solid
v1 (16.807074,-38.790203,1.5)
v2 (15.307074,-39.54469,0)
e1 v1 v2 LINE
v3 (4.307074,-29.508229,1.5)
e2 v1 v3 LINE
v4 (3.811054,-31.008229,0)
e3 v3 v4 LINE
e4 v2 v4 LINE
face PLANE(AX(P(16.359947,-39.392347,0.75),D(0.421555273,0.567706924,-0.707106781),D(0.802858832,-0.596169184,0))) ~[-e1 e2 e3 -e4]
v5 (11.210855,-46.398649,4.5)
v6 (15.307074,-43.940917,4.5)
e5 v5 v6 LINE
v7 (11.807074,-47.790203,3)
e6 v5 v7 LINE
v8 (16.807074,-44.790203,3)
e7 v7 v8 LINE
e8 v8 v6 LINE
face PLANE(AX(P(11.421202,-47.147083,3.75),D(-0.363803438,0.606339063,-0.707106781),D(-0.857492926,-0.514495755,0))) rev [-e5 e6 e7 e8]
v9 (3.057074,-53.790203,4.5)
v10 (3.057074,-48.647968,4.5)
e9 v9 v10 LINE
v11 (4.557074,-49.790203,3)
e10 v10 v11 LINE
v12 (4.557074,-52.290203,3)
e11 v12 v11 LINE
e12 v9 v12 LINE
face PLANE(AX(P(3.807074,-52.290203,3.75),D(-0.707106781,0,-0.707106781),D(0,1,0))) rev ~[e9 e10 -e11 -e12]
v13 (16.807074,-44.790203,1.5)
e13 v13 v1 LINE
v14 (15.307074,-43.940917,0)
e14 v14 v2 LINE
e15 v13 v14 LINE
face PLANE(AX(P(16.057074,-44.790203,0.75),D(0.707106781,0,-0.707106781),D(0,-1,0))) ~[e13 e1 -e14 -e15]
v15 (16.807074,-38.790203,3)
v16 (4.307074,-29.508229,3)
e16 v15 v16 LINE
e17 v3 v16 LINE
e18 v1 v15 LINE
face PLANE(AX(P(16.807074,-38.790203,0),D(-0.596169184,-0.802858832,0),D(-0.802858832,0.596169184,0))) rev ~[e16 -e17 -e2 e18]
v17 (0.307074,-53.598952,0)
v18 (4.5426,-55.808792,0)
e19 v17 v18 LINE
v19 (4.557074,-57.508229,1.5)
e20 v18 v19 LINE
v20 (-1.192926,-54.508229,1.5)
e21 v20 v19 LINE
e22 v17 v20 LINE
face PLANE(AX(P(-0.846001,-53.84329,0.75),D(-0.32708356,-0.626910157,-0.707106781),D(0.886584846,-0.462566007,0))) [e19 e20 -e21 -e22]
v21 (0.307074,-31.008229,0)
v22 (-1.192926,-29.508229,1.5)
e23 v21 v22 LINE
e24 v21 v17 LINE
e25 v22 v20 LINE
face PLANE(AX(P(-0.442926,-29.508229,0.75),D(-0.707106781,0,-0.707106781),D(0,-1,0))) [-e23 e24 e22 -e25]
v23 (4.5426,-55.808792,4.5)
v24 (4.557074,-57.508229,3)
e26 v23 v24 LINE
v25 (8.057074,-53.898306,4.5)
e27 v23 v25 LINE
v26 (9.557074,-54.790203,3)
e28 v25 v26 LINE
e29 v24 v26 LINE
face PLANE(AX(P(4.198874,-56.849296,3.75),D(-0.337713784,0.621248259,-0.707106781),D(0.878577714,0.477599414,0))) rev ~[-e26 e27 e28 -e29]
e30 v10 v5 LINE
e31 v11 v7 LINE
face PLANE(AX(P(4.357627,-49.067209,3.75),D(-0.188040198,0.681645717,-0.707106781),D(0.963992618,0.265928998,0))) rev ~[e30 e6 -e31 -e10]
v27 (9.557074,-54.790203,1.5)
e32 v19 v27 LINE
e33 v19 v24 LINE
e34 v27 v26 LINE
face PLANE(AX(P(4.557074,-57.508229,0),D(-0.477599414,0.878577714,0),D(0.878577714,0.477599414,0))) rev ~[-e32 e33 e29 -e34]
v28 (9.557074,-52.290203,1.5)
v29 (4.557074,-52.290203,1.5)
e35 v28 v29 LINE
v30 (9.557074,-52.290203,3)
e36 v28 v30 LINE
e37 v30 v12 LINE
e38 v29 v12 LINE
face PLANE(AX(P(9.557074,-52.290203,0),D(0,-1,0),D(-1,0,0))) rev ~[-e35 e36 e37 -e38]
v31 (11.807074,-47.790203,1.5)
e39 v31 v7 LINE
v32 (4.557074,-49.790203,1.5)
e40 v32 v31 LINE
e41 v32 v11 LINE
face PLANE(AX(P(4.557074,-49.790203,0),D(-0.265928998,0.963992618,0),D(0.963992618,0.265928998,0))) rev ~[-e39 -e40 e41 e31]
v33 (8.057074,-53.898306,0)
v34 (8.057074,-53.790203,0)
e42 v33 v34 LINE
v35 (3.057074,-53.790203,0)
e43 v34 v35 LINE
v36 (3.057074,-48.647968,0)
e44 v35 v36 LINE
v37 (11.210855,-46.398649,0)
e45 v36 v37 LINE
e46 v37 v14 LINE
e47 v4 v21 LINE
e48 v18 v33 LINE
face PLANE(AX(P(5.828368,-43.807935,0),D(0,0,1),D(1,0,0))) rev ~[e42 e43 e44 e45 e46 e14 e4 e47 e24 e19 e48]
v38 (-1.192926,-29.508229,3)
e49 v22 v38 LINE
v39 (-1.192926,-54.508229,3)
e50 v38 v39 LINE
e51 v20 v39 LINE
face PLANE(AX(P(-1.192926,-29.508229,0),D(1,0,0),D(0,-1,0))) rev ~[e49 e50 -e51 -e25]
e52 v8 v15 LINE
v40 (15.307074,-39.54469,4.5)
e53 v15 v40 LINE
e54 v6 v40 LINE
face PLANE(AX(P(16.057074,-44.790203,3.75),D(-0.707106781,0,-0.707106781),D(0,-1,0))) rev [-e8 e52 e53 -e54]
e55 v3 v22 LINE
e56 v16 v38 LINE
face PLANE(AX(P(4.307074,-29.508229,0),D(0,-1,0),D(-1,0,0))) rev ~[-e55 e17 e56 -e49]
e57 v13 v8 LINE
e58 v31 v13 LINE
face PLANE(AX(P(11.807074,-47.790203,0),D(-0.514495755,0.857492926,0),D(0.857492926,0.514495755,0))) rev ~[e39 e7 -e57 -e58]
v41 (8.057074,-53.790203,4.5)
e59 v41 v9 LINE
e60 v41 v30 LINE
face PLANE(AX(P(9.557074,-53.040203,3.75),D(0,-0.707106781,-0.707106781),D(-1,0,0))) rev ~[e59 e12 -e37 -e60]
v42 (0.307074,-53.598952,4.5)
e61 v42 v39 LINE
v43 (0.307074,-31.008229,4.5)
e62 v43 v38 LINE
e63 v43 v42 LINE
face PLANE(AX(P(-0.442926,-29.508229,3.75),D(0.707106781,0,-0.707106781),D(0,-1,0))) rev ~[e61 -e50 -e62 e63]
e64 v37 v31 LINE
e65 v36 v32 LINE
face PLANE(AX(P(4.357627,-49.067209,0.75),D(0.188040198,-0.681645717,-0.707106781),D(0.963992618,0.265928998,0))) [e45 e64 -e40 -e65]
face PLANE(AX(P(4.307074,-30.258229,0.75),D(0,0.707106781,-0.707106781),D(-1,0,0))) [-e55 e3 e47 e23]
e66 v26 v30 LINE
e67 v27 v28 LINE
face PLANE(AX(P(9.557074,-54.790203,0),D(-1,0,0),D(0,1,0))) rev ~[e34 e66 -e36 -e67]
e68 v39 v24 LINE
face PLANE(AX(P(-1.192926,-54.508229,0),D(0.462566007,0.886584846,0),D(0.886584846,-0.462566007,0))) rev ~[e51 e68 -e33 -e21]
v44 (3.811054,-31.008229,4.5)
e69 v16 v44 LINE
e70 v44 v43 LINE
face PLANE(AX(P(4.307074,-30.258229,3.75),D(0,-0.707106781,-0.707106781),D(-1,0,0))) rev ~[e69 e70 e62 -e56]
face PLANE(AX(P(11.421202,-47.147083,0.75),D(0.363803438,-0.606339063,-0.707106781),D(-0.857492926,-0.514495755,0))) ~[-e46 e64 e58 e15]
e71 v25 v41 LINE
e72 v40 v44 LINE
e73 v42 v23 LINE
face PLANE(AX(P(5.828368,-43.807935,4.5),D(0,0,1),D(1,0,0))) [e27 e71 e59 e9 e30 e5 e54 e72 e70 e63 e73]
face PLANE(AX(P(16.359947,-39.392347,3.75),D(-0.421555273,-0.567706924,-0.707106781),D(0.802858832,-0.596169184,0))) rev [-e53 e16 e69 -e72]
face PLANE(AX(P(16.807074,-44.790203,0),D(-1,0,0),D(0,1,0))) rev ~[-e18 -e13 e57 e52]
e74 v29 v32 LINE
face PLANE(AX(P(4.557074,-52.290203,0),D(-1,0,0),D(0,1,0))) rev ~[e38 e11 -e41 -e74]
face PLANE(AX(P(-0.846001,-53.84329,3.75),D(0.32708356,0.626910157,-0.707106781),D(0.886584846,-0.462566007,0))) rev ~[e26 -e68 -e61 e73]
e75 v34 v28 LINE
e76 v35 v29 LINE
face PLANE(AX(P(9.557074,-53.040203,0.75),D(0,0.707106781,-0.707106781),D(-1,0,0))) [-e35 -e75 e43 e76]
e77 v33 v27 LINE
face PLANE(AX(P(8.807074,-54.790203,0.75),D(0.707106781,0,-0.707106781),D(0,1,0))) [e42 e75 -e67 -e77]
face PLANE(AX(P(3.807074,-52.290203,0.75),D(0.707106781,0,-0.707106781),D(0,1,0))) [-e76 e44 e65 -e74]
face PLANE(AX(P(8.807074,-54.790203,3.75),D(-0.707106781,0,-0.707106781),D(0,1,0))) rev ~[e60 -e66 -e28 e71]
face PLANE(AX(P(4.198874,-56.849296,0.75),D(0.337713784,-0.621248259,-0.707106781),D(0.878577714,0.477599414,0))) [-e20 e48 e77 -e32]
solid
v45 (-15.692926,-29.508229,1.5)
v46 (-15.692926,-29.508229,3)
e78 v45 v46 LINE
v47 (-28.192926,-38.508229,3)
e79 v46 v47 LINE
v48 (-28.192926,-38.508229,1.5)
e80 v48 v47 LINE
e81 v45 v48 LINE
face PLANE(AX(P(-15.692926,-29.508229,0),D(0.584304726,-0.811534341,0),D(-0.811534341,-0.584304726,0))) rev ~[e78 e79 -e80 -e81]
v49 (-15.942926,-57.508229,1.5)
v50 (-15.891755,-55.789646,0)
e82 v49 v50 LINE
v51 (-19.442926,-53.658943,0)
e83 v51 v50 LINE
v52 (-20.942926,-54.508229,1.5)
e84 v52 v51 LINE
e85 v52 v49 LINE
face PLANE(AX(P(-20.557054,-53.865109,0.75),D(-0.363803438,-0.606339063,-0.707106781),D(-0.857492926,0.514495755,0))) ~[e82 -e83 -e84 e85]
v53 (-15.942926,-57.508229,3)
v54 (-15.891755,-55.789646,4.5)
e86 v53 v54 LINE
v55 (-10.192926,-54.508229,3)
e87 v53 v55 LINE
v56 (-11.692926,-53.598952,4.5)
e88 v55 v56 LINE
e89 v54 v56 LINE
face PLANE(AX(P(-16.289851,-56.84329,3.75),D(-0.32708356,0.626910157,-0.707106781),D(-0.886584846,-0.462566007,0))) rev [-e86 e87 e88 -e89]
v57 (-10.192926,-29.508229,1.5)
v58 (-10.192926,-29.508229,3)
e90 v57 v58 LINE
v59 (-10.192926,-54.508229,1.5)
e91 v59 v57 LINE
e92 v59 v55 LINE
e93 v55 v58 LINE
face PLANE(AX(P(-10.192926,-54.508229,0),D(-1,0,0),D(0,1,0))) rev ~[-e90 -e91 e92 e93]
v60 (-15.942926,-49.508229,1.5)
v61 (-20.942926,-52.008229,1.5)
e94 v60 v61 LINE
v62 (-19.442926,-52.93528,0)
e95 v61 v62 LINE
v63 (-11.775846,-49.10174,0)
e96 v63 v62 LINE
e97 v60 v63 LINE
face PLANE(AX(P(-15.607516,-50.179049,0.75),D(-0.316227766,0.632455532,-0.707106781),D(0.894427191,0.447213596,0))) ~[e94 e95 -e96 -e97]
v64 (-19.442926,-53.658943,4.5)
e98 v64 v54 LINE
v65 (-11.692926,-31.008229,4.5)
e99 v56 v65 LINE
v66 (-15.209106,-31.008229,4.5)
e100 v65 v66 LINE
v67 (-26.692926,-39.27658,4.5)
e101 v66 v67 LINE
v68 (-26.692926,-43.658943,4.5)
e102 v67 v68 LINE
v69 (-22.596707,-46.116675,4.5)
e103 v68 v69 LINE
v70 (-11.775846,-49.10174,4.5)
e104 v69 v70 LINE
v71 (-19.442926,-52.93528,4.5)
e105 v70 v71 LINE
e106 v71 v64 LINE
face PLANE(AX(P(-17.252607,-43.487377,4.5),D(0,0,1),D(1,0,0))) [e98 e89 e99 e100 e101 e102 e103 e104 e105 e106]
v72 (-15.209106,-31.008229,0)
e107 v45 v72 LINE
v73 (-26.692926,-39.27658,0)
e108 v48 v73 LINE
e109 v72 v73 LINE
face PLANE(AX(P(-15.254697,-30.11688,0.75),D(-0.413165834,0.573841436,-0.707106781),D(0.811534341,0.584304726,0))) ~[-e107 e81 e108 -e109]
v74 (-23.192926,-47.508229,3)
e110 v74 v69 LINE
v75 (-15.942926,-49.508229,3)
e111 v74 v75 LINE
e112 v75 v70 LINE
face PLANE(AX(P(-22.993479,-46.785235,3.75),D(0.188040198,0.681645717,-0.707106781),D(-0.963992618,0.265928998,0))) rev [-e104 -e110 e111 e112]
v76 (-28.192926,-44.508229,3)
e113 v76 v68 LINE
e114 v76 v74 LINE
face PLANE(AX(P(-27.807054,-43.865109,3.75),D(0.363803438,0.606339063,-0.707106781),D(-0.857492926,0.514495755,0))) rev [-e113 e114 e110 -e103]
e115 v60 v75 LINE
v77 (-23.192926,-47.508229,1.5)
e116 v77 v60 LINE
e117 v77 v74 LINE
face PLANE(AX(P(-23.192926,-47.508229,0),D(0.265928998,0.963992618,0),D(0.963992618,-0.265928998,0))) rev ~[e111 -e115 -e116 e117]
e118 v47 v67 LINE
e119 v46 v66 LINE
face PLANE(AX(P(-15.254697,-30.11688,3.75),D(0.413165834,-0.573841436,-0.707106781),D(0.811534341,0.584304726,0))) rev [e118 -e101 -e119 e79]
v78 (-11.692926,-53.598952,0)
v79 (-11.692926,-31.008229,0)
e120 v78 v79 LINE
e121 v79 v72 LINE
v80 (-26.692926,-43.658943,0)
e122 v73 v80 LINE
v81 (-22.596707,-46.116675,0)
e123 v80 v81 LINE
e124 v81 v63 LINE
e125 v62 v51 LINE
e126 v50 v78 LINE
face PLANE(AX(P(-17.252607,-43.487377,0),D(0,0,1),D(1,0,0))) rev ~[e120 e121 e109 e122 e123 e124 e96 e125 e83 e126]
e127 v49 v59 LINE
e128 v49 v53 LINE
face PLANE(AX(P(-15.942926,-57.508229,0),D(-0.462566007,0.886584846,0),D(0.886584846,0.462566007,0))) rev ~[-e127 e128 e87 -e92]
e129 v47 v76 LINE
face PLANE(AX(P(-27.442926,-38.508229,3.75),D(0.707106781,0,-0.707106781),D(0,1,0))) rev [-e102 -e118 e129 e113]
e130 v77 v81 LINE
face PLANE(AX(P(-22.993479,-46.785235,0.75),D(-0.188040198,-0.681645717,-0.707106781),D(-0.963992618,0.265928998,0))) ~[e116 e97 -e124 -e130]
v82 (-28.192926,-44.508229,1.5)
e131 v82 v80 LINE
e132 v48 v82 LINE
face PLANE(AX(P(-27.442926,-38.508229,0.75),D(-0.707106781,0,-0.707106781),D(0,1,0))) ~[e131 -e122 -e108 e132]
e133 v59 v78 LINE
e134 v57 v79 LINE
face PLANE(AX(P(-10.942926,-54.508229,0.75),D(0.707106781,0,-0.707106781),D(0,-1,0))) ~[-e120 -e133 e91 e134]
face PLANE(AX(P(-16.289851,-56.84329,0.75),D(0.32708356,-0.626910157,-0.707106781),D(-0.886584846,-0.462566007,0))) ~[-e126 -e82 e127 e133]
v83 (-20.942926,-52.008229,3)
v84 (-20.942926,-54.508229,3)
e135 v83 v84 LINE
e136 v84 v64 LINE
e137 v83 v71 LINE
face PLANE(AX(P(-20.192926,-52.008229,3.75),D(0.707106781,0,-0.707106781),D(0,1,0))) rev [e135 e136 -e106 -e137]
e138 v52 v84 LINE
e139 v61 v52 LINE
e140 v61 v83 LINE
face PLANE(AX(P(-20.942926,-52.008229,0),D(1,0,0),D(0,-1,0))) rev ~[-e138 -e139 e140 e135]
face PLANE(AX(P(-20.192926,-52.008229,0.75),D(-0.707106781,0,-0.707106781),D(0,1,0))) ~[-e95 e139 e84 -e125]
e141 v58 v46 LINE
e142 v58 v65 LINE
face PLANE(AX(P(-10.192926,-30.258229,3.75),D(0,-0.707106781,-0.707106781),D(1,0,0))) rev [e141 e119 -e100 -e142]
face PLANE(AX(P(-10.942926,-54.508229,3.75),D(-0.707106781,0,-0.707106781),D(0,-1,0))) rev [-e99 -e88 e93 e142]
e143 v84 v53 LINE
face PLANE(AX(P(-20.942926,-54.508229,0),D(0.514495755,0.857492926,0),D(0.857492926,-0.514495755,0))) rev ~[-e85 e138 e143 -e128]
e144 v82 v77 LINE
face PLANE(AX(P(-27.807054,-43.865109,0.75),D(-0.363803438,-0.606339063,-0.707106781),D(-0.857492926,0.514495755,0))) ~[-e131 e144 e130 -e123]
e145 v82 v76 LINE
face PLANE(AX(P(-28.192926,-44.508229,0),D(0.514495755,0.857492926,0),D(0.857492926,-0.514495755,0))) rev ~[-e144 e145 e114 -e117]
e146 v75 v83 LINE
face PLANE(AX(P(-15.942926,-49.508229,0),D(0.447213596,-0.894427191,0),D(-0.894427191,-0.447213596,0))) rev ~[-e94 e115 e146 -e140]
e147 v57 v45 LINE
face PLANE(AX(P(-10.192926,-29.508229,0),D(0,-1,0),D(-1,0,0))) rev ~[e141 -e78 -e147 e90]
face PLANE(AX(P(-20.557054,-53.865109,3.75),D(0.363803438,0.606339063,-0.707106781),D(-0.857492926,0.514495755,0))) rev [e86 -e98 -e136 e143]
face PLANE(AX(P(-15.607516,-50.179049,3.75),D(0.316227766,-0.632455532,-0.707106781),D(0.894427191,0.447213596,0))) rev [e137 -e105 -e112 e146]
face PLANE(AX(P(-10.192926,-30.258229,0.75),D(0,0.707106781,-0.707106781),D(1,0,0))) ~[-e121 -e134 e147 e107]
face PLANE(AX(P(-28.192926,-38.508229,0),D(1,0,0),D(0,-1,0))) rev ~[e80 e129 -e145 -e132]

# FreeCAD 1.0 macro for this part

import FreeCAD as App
import Part
import Sketcher

V = App.Vector
Q = App.Units.Quantity


def edges_at(feature, points):
    """Names of the edges that pass closest to the given points."""
    edges = feature.Shape.Edges
    near = lambda p: min(range(len(edges)), key=lambda i: edges[i].distToShape(Part.Vertex(*p))[0])
    return sorted({f"Edge{near(p) + 1}" for p in points})


def add_polygon(sketch, points):
    """Adds a closed chain of lines whose ends are joined by coincident constraints."""
    first, n = sketch.GeometryCount, len(points)
    for a, b in zip(points, points[1:] + points[:1]):
        sketch.addGeometry(Part.LineSegment(App.Vector(*a, 0), App.Vector(*b, 0)), False)
    for i in range(n):
        sketch.addConstraint(Sketcher.Constraint("Coincident", first + i, 2, first + (i + 1) % n, 1))

doc = App.newDocument("Part")
params = doc.addObject("Spreadsheet::Sheet", "Params")
for row, (alias, value) in enumerate([
    ("sketch1_width", "5 mm"),
    ("sketch1_height", "6 mm"),
    ("sketch1_height2", "25 mm"),
    ("sketch1_width2", "5.5 mm"),
    ("sketch1_height3", "2.5 mm"),
    ("pad1_length", "4.5 mm"),
    ("sketch2_width", "5 mm"),
    ("sketch2_height", "6 mm"),
    ("sketch2_height2", "25 mm"),
    ("sketch2_width2", "5.5 mm"),
    ("sketch2_height3", "2.5 mm"),
    ("pad2_length", "4.5 mm"),
    ("chamfer_size", "1.5 mm"),
], start=1):
    params.set(f"A{row}", alias)
    params.set(f"B{row}", "=" + value)
    params.setAlias(f"B{row}", alias)

body = doc.addObject("PartDesign::Body", "Body")
body.AllowCompound = True

sketch1 = body.newObject("Sketcher::SketchObject", "Sketch")
sketch1.AttachmentSupport = (doc.getObject("XY_Plane"), [""])
sketch1.MapMode = "FlatFace"
add_polygon(sketch1, [(16.8, -44.8), (16.8, -38.8), (4.3, -29.5), (-1.2, -29.5), (-1.2, -54.5), (4.6, -57.5), (9.6, -54.8), (9.6, -52.3), (4.6, -52.3), (4.6, -49.8), (11.8, -47.8)])
sketch1.addConstraint([
    Sketcher.Constraint("Vertical", 0),
    Sketcher.Constraint("Horizontal", 2),
    Sketcher.Constraint("Vertical", 3),
    Sketcher.Constraint("Vertical", 6),
    Sketcher.Constraint("Horizontal", 7),
    Sketcher.Constraint("Vertical", 8),
    Sketcher.Constraint("Vertical", 4, 2, 7, 2),
    Sketcher.Constraint("Equal", 6, 8),
    Sketcher.Constraint("DistanceX", 7, 2, 7, 1, Q("5 mm")),
    Sketcher.Constraint("DistanceY", 0, 1, 0, 2, Q("6 mm")),
    Sketcher.Constraint("DistanceY", 3, 2, 3, 1, Q("25 mm")),
    Sketcher.Constraint("DistanceX", 2, 2, 2, 1, Q("5.5 mm")),
    Sketcher.Constraint("DistanceY", 6, 1, 6, 2, Q("2.5 mm")),
    Sketcher.Constraint("DistanceX", 2, 2, 0, 2, Q("18 mm")),
    Sketcher.Constraint("DistanceY", 4, 2, 3, 2, Q("3 mm")),
    Sketcher.Constraint("DistanceY", 5, 2, 0, 2, Q("16 mm")),
    Sketcher.Constraint("DistanceY", 5, 2, 9, 2, Q("7 mm")),
    Sketcher.Constraint("DistanceX", 9, 2, 0, 2, Q("5 mm")),
    Sketcher.Constraint("DistanceX", 3, 2, 4, 2, Q("5.75 mm")),
    Sketcher.Constraint("DistanceY", 1, 2, -1, 1, Q("29.508229 mm")),
    Sketcher.Constraint("Distance", 1, Q("15.569362 mm")),
    Sketcher.Constraint("DistanceX", -1, 1, 0, 2, Q("16.807074 mm")),
])
sketch1.setExpression("Constraints[19]", "Params.sketch1_width")
sketch1.setExpression("Constraints[20]", "Params.sketch1_height")
sketch1.setExpression("Constraints[21]", "Params.sketch1_height2")
sketch1.setExpression("Constraints[22]", "Params.sketch1_width2")
sketch1.setExpression("Constraints[23]", "Params.sketch1_height3")
pad1 = body.newObject("PartDesign::Pad", "Pad")
pad1.Profile = sketch1
pad1.setExpression("Length", "Params.pad1_length")

sketch2 = body.newObject("Sketcher::SketchObject", "Sketch001")
sketch2.AttachmentSupport = (doc.getObject("XY_Plane"), [""])
sketch2.MapMode = "FlatFace"
add_polygon(sketch2, [(-15.7, -29.5), (-28.2, -38.5), (-28.2, -44.5), (-23.2, -47.5), (-15.9, -49.5), (-20.9, -52), (-20.9, -54.5), (-15.9, -57.5), (-10.2, -54.5), (-10.2, -29.5)])
add_polygon(sketch2, [(16.8, -44.8), (16.8, -38.8), (4.3, -29.5), (-1.2, -29.5), (-1.2, -54.5), (4.6, -57.5), (9.6, -54.8), (9.6, -52.3), (4.6, -52.3), (4.6, -49.8), (11.8, -47.8)])
sketch2.addConstraint([
    Sketcher.Constraint("Vertical", 1),
    Sketcher.Constraint("Vertical", 5),
    Sketcher.Constraint("Vertical", 8),
    Sketcher.Constraint("Horizontal", 9),
    Sketcher.Constraint("Vertical", 10),
    Sketcher.Constraint("Horizontal", 12),
    Sketcher.Constraint("Vertical", 13),
    Sketcher.Constraint("Vertical", 16),
    Sketcher.Constraint("Horizontal", 17),
    Sketcher.Constraint("Vertical", 18),
    Sketcher.Constraint("Parallel", 2, 6),
    Sketcher.Constraint("Horizontal", 5, 2, 7, 2),
    Sketcher.Constraint("Horizontal", 9, 2, 11, 2),
    Sketcher.Constraint("Horizontal", 7, 2, 13, 2),
    Sketcher.Constraint("Horizontal", 6, 2, 14, 2),
    Sketcher.Constraint("Vertical", 3, 2, 6, 2),
    Sketcher.Constraint("Vertical", 14, 2, 17, 2),
    Sketcher.Constraint("Equal", 9, 12),
    Sketcher.Constraint("Equal", 1, 10),
    Sketcher.Constraint("Equal", 5, 16),
    Sketcher.Constraint("Equal", 16, 18),
    Sketcher.Constraint("Equal", 2, 6),
    Sketcher.Constraint("Equal", 7, 14),
    Sketcher.Constraint("Equal", 3, 19),
    Sketcher.Constraint("Equal", 6, 20),
    Sketcher.Constraint("DistanceX", 17, 2, 17, 1, Q("5 mm")),
    Sketcher.Constraint("DistanceY", 1, 2, 1, 1, Q("6 mm")),
    Sketcher.Constraint("DistanceY", 8, 1, 8, 2, Q("25 mm")),
    Sketcher.Constraint("DistanceX", 9, 2, 9, 1, Q("5.5 mm")),
    Sketcher.Constraint("DistanceY", 5, 2, 5, 1, Q("2.5 mm")),
    Sketcher.Constraint("DistanceX", 1, 2, 2, 2, Q("5 mm")),
    Sketcher.Constraint("DistanceY", 2, 2, 1, 2, Q("3 mm")),
    Sketcher.Constraint("DistanceY", 3, 2, 2, 2, Q("2 mm")),
    Sketcher.Constraint("DistanceY", 5, 2, 3, 2, Q("5 mm")),
    Sketcher.Constraint("DistanceX", 2, 2, 7, 2, Q("13 mm")),
    Sketcher.Constraint("DistanceX", 8, 2, 10, 2, Q("27 mm")),
    Sketcher.Constraint("DistanceX", 9, 2, 11, 2, Q("20 mm")),
    Sketcher.Constraint("DistanceY", 15, 2, 10, 2, Q("16 mm")),
    Sketcher.Constraint("DistanceX", 6, 2, 14, 2, Q("20.5 mm")),
    Sketcher.Constraint("DistanceY", 0, 2, -1, 1, Q("38.508229 mm")),
    Sketcher.Constraint("Distance", 11, Q("15.569362 mm")),
    Sketcher.Constraint("DistanceX", 0, 2, -1, 1, Q("28.192926 mm")),
])
sketch2.setExpression("Constraints[46]", "Params.sketch2_width")
sketch2.setExpression("Constraints[47]", "Params.sketch2_height")
sketch2.setExpression("Constraints[48]", "Params.sketch2_height2")
sketch2.setExpression("Constraints[49]", "Params.sketch2_width2")
sketch2.setExpression("Constraints[50]", "Params.sketch2_height3")
pad2 = body.newObject("PartDesign::Pad", "Pad001")
pad2.Profile = sketch2
pad2.setExpression("Length", "Params.pad2_length")
doc.recompute()

chamfer = body.newObject("PartDesign::Chamfer", "Chamfer")
chamfer.Base = (pad2, edges_at(pad2, [
    (10.557, -34.149, 4.5),
    (1.557, -29.508, 4.5),
    (-1.193, -42.008, 4.5),
    (1.682, -56.008, 4.5),
    (7.057, -56.149, 4.5),
    (9.557, -53.54, 4.5),
    (7.057, -52.29, 4.5),
    (4.557, -51.04, 4.5),
    (8.182, -48.79, 4.5),
    (14.307, -46.29, 4.5),
    (16.807, -41.79, 4.5),
    (10.557, -34.149, 0),
    (1.557, -29.508, 0),
    (-1.193, -42.008, 0),
    (1.682, -56.008, 0),
    (7.057, -56.149, 0),
    (9.557, -53.54, 0),
    (7.057, -52.29, 0),
    (4.557, -51.04, 0),
    (8.182, -48.79, 0),
    (14.307, -46.29, 0),
    (16.807, -41.79, 0),
    (-10.193, -42.008, 4.5),
    (-12.943, -29.508, 4.5),
    (-21.943, -34.008, 4.5),
    (-28.193, -41.508, 4.5),
    (-25.693, -46.008, 4.5),
    (-19.568, -48.508, 4.5),
    (-18.443, -50.758, 4.5),
    (-20.943, -53.258, 4.5),
    (-18.443, -56.008, 4.5),
    (-13.068, -56.008, 4.5),
    (-10.193, -42.008, 0),
    (-12.943, -29.508, 0),
    (-21.943, -34.008, 0),
    (-28.193, -41.508, 0),
    (-25.693, -46.008, 0),
    (-19.568, -48.508, 0),
    (-18.443, -50.758, 0),
    (-20.943, -53.258, 0),
    (-18.443, -56.008, 0),
    (-13.068, -56.008, 0),
]))
chamfer.setExpression("Size", "Params.chamfer_size")

doc.recompute()
